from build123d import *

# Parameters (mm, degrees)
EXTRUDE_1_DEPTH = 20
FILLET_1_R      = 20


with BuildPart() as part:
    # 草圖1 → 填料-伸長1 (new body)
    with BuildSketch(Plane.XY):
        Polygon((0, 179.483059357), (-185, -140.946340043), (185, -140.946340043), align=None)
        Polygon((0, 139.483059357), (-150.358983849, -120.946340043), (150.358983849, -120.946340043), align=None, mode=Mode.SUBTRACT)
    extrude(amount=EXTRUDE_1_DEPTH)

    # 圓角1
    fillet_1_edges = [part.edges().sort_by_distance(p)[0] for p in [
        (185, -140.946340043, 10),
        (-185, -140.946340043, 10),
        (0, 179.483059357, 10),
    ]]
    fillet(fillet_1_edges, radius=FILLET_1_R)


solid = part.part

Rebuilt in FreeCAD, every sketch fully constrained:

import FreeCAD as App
import Part
import Sketcher
from FreeCAD import Vector
Q = App.Units.Quantity


def edges_at(feature, points):
    """Names of the edges that pass closest to the given points."""
    edges = feature.Shape.Edges
    near = lambda p: min(range(len(edges)), key=lambda i: edges[i].distToShape(Part.Vertex(*p))[0])
    return sorted({f"Edge{near(p) + 1}" for p in points})

doc = App.newDocument("Part")
body = doc.addObject("PartDesign::Body", "Body")

# Sketch on XY plane
sketch1 = body.newObject("Sketcher::SketchObject", "Sketch")
sketch1.AttachmentSupport = (doc.getObject("XY_Plane"), [""])
sketch1.MapMode = "FlatFace"
sketch1.addGeometry([
    Part.LineSegment(Vector(0, 179, 0), Vector(-185, -141, 0)),  # 0
    Part.LineSegment(Vector(-185, -141, 0), Vector(185, -141, 0)),  # 1
    Part.LineSegment(Vector(185, -141, 0), Vector(0, 179, 0)),  # 2
    Part.LineSegment(Vector(-150, -121, 0), Vector(0, 139, 0)),  # 3
    Part.LineSegment(Vector(0, 139, 0), Vector(150, -121, 0)),  # 4
    Part.LineSegment(Vector(150, -121, 0), Vector(-150, -121, 0)),  # 5
], False)
sketch1.addConstraint([
    Sketcher.Constraint("Coincident", 0, 2, 1, 1),
    Sketcher.Constraint("Coincident", 1, 2, 2, 1),
    Sketcher.Constraint("Coincident", 2, 2, 0, 1),
    Sketcher.Constraint("Coincident", 3, 2, 4, 1),
    Sketcher.Constraint("Coincident", 4, 2, 5, 1),
    Sketcher.Constraint("Coincident", 5, 2, 3, 1),
    Sketcher.Constraint("Horizontal", 1),
    Sketcher.Constraint("Horizontal", 5),
    Sketcher.Constraint("PointOnObject", 2, 2, -2),
    Sketcher.Constraint("PointOnObject", 3, 2, -2),
    Sketcher.Constraint("Parallel", 0, 3),
    Sketcher.Constraint("Parallel", 2, 4),
    Sketcher.Constraint("Equal", 0, 2),
    Sketcher.Constraint("DistanceX", 1, 1, 1, 2, 370.0),
    Sketcher.Constraint("Angle", 0, Q("-120 deg")),
    Sketcher.Constraint("DistanceY", 3, 2, 2, 2, 40.0),
    Sketcher.Constraint("DistanceY", 1, 2, 4, 2, 20.0),
    Sketcher.Constraint("DistanceY", 0, 2, -1, 1, 140.94634),
])
pad1 = body.newObject("PartDesign::Pad", "Pad")
pad1.Profile = sketch1
pad1.Length = 20
doc.recompute()

fillet = body.newObject("PartDesign::Fillet", "Fillet")
fillet.Base = (pad1, edges_at(pad1, [(185, -140.946, 10), (-185, -140.946, 10), (0, 179.483, 10)]))
fillet.Radius = 20

doc.recompute()
